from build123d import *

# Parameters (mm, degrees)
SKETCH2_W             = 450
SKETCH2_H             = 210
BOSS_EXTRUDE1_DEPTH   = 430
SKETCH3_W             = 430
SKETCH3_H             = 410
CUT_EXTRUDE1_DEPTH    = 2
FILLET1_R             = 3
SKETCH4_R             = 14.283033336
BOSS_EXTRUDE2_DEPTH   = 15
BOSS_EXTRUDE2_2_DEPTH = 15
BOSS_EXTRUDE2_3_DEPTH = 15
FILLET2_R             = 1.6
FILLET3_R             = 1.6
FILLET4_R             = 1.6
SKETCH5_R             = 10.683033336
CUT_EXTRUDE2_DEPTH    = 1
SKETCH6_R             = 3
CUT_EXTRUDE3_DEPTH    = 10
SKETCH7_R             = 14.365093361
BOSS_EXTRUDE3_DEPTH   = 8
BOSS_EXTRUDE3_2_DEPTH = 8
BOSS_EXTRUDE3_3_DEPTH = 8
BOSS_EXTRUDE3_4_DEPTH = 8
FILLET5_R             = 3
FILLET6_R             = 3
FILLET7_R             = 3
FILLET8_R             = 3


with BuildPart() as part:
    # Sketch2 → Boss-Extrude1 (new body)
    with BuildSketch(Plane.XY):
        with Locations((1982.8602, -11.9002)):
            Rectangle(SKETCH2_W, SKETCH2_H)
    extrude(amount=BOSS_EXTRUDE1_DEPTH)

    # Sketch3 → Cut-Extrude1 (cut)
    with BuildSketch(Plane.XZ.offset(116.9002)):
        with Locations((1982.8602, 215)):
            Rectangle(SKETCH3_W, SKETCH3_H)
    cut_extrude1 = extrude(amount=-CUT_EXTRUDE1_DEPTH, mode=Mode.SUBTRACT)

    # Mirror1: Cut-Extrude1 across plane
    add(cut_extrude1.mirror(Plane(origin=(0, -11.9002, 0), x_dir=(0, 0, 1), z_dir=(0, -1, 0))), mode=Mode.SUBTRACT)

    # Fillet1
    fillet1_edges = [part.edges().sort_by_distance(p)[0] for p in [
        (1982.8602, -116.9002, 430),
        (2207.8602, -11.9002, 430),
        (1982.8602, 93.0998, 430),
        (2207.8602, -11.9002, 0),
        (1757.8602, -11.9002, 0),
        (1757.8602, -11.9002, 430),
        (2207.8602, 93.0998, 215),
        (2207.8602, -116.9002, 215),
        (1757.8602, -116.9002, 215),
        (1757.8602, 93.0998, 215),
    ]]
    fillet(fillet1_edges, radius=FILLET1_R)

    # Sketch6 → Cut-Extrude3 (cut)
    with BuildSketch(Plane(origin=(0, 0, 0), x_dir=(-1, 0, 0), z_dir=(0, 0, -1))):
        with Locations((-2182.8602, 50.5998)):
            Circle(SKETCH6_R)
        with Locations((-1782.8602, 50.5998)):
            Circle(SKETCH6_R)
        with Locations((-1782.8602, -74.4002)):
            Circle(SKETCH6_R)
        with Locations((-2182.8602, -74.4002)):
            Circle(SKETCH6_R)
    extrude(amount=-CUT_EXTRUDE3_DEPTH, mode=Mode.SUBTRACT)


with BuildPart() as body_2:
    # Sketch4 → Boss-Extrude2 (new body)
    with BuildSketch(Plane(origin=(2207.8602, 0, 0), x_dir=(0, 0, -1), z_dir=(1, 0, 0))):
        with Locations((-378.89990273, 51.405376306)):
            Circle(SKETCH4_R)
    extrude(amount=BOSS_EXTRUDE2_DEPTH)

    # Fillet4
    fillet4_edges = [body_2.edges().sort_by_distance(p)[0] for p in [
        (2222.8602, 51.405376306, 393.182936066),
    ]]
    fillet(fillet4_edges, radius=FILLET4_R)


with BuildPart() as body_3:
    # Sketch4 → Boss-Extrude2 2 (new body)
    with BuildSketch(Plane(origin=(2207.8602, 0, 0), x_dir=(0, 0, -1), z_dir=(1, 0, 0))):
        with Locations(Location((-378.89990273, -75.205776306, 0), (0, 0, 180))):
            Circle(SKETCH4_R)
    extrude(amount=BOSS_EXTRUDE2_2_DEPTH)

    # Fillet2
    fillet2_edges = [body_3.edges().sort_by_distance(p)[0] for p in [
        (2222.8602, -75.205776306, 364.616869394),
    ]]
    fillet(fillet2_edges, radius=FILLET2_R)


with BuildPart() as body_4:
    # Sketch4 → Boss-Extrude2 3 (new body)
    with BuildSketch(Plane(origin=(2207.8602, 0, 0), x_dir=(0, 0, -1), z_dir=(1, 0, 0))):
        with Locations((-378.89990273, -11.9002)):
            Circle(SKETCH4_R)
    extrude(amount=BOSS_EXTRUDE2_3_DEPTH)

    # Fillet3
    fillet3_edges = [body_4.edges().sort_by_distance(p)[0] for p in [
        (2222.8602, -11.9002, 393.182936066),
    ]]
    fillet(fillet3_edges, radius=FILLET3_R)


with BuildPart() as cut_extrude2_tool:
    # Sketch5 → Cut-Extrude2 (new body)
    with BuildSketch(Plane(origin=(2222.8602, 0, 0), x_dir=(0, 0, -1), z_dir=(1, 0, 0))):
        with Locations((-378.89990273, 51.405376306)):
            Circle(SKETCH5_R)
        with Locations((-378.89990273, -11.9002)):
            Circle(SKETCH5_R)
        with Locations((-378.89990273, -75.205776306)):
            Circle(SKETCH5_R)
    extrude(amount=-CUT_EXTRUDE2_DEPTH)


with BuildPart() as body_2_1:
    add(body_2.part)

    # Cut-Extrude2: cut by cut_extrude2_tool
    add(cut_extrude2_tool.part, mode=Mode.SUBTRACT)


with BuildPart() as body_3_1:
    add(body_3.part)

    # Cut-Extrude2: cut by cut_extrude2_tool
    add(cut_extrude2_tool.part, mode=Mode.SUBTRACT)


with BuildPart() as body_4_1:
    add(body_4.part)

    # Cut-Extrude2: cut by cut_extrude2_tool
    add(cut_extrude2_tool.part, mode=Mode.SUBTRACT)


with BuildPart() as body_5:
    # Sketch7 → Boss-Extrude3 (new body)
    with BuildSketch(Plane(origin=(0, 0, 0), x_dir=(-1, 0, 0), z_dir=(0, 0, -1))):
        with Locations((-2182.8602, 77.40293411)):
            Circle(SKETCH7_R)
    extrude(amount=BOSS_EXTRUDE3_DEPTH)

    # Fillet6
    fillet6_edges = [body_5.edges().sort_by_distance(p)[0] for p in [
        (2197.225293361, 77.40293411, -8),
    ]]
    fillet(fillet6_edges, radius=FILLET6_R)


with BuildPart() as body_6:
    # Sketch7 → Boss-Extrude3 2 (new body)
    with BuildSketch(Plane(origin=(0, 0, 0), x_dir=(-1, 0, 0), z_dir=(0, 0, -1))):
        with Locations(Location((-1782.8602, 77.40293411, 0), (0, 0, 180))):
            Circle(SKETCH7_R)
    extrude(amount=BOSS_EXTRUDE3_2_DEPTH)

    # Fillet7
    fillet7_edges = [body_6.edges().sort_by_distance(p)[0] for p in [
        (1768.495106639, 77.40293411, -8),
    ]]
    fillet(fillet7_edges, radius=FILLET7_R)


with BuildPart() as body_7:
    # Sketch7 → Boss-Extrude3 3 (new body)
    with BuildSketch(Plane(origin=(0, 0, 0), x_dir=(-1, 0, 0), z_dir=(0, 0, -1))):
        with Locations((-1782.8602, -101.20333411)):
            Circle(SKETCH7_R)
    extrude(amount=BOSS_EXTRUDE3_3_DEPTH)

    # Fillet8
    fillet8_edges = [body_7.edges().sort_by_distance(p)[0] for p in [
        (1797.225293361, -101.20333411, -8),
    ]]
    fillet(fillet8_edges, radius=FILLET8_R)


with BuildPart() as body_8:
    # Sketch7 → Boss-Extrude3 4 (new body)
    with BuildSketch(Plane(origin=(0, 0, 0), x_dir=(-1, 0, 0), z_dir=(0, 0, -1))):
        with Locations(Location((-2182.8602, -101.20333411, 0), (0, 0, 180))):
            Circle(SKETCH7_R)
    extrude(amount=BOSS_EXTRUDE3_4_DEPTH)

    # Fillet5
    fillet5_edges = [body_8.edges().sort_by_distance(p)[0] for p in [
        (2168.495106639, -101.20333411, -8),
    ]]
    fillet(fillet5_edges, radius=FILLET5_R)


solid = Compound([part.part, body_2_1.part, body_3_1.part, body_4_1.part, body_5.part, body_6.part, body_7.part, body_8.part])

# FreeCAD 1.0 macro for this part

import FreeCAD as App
import Part
import Sketcher
from FreeCAD import Vector


def edges_at(feature, points):
    """Names of the edges that pass closest to the given points."""
    edges = feature.Shape.Edges
    near = lambda p: min(range(len(edges)), key=lambda i: edges[i].distToShape(Part.Vertex(*p))[0])
    return sorted({f"Edge{near(p) + 1}" for p in points})

doc = App.newDocument("Part")
body = doc.addObject("PartDesign::Body", "Body")

sketch1 = body.newObject("Sketcher::SketchObject", "Sketch")
sketch1.AttachmentSupport = (doc.getObject("XY_Plane"), [""])
sketch1.MapMode = "FlatFace"
sketch1.addGeometry(Part.LineSegment(Vector(1758, 93, 0), Vector(1758, -117, 0)), False)
sketch1.addGeometry(Part.LineSegment(Vector(1758, -117, 0), Vector(2208, -117, 0)), False)
sketch1.addGeometry(Part.LineSegment(Vector(2208, -117, 0), Vector(2208, 93, 0)), False)
sketch1.addGeometry(Part.LineSegment(Vector(2208, 93, 0), Vector(1758, 93, 0)), False)
sketch1.addConstraint(Sketcher.Constraint("Coincident", 0, 2, 1, 1))
sketch1.addConstraint(Sketcher.Constraint("Coincident", 1, 2, 2, 1))
sketch1.addConstraint(Sketcher.Constraint("Coincident", 2, 2, 3, 1))
sketch1.addConstraint(Sketcher.Constraint("Coincident", 3, 2, 0, 1))
sketch1.addConstraint(Sketcher.Constraint("Vertical", 0))
sketch1.addConstraint(Sketcher.Constraint("Horizontal", 1))
sketch1.addConstraint(Sketcher.Constraint("Vertical", 2))
sketch1.addConstraint(Sketcher.Constraint("Horizontal", 3))
sketch1.addConstraint(Sketcher.Constraint("DistanceX", 1, 1, 1, 2, 450.0))
sketch1.addConstraint(Sketcher.Constraint("DistanceY", 0, 2, 0, 1, 210.0))
sketch1.addConstraint(Sketcher.Constraint("DistanceX", -1, 1, 0, 2, 1757.8602))
sketch1.addConstraint(Sketcher.Constraint("DistanceY", 0, 2, -1, 1, 116.9002))
pad1 = body.newObject("PartDesign::Pad", "Pad")
pad1.Profile = sketch1
pad1.Length = 430

sketch2 = body.newObject("Sketcher::SketchObject", "Sketch001")
sketch2.AttachmentSupport = (doc.getObject("XZ_Plane"), [""])
sketch2.MapMode = "FlatFace"
sketch2.AttachmentOffset = App.Placement(Vector(0, 0, 116.9002), App.Rotation())
sketch2.addGeometry(Part.LineSegment(Vector(1768, 420, 0), Vector(1768, 10, 0)), False)
sketch2.addGeometry(Part.LineSegment(Vector(1768, 10, 0), Vector(2198, 10, 0)), False)
sketch2.addGeometry(Part.LineSegment(Vector(2198, 10, 0), Vector(2198, 420, 0)), False)
sketch2.addGeometry(Part.LineSegment(Vector(2198, 420, 0), Vector(1768, 420, 0)), False)
sketch2.addConstraint(Sketcher.Constraint("Coincident", 0, 2, 1, 1))
sketch2.addConstraint(Sketcher.Constraint("Coincident", 1, 2, 2, 1))
sketch2.addConstraint(Sketcher.Constraint("Coincident", 2, 2, 3, 1))
sketch2.addConstraint(Sketcher.Constraint("Coincident", 3, 2, 0, 1))
sketch2.addConstraint(Sketcher.Constraint("Vertical", 0))
sketch2.addConstraint(Sketcher.Constraint("Horizontal", 1))
sketch2.addConstraint(Sketcher.Constraint("Vertical", 2))
sketch2.addConstraint(Sketcher.Constraint("Horizontal", 3))
sketch2.addConstraint(Sketcher.Constraint("DistanceX", 1, 1, 1, 2, 430.0))
sketch2.addConstraint(Sketcher.Constraint("DistanceY", 0, 2, 0, 1, 410.0))
sketch2.addConstraint(Sketcher.Constraint("DistanceY", -1, 1, 0, 2, 10.0))
sketch2.addConstraint(Sketcher.Constraint("DistanceX", -1, 1, 0, 2, 1767.8602))
pocket1 = body.newObject("PartDesign::Pocket", "Pocket")
pocket1.Profile = sketch2
pocket1.Length = 2
doc.recompute()

datumplane = body.newObject("PartDesign::Plane", "DatumPlane")
datumplane.AttachmentSupport = (doc.getObject("XZ_Plane"), [""])
datumplane.MapMode = "FlatFace"
datumplane.AttachmentOffset = App.Placement(Vector(0, 0, 11.9002), App.Rotation())
mirrored = body.newObject("PartDesign::Mirrored", "Mirrored")
mirrored.Originals = [pocket1]
mirrored.MirrorPlane = (datumplane, [""])
body.Tip = mirrored
doc.recompute()

fillet = body.newObject("PartDesign::Fillet", "Fillet")
fillet.Base = (mirrored, edges_at(mirrored, [
    (1982.86, -116.9, 430),
    (2207.86, -11.9, 430),
    (1982.86, 93.1, 430),
    (2207.86, -11.9, 0),
    (1757.86, -11.9, 0),
    (1757.86, -11.9, 430),
    (2207.86, 93.1, 215),
    (2207.86, -116.9, 215),
    (1757.86, -116.9, 215),
    (1757.86, 93.1, 215),
]))
fillet.Radius = 3

sketch3 = body.newObject("Sketcher::SketchObject", "Sketch002")
sketch3.AttachmentSupport = (doc.getObject("XY_Plane"), [""])
sketch3.MapMode = "FlatFace"
sketch3.addGeometry(Part.Circle(Vector(2182.9, 50.6, 0), Vector(0, 0, 1), 3), False)
sketch3.addGeometry(Part.Circle(Vector(1782.9, 50.6, 0), Vector(0, 0, 1), 3), False)
sketch3.addGeometry(Part.Circle(Vector(1782.9, -74.4, 0), Vector(0, 0, 1), 3), False)
sketch3.addGeometry(Part.Circle(Vector(2182.9, -74.4, 0), Vector(0, 0, 1), 3), False)
sketch3.addConstraint(Sketcher.Constraint("Equal", 0, 1))
sketch3.addConstraint(Sketcher.Constraint("Equal", 1, 2))
sketch3.addConstraint(Sketcher.Constraint("Equal", 2, 3))
sketch3.addConstraint(Sketcher.Constraint("Horizontal", 0, 3, 1, 3))
sketch3.addConstraint(Sketcher.Constraint("Horizontal", 2, 3, 3, 3))
sketch3.addConstraint(Sketcher.Constraint("Vertical", 1, 3, 2, 3))
sketch3.addConstraint(Sketcher.Constraint("Vertical", 0, 3, 3, 3))
sketch3.addConstraint(Sketcher.Constraint("Diameter", 0, 6.0))
sketch3.addConstraint(Sketcher.Constraint("DistanceX", 1, 3, 0, 3, 400.0))
sketch3.addConstraint(Sketcher.Constraint("DistanceY", 2, 3, 1, 3, 125.0))
sketch3.addConstraint(Sketcher.Constraint("DistanceX", -1, 1, 0, 3, 2182.8602))
sketch3.addConstraint(Sketcher.Constraint("DistanceY", -1, 1, 0, 3, 50.5998))
pocket2 = body.newObject("PartDesign::Pocket", "Pocket001")
pocket2.Profile = sketch3
pocket2.Length = 10
pocket2.Reversed = True
body2 = doc.addObject("PartDesign::Body", "Body001")

sketch4 = body2.newObject("Sketcher::SketchObject", "Sketch003")
sketch4.AttachmentSupport = (doc.getObject("YZ_Plane001"), [""])
sketch4.MapMode = "FlatFace"
sketch4.AttachmentOffset = App.Placement(Vector(0, 0, 2207.8602), App.Rotation())
sketch4.addGeometry(Part.Circle(Vector(51, 379, 0), Vector(0, 0, 1), 14), False)
sketch4.addConstraint(Sketcher.Constraint("Diameter", 0, 28.566067))
sketch4.addConstraint(Sketcher.Constraint("DistanceX", -1, 1, 0, 3, 51.405376))
sketch4.addConstraint(Sketcher.Constraint("DistanceY", -1, 1, 0, 3, 378.899903))
pad2 = body2.newObject("PartDesign::Pad", "Pad001")
pad2.Profile = sketch4
pad2.Length = 15
doc.recompute()

fillet2 = body2.newObject("PartDesign::Fillet", "Fillet001")
fillet2.Base = (pad2, edges_at(pad2, [(2222.86, 51.405, 393.183)]))
fillet2.Radius = 1.6
body3 = doc.addObject("PartDesign::Body", "Body002")

sketch5 = body3.newObject("Sketcher::SketchObject", "Sketch004")
sketch5.AttachmentSupport = (doc.getObject("YZ_Plane002"), [""])
sketch5.MapMode = "FlatFace"
sketch5.AttachmentOffset = App.Placement(Vector(0, 0, 2207.8602), App.Rotation())
sketch5.addGeometry(Part.Circle(Vector(-75, 379, 0), Vector(0, 0, 1), 14), False)
sketch5.addConstraint(Sketcher.Constraint("Diameter", 0, 28.566067))
sketch5.addConstraint(Sketcher.Constraint("DistanceX", 0, 3, -1, 1, 75.205776))
sketch5.addConstraint(Sketcher.Constraint("DistanceY", -1, 1, 0, 3, 378.899903))
pad3 = body3.newObject("PartDesign::Pad", "Pad002")
pad3.Profile = sketch5
pad3.Length = 15
doc.recompute()

fillet3 = body3.newObject("PartDesign::Fillet", "Fillet002")
fillet3.Base = (pad3, edges_at(pad3, [(2222.86, -75.206, 364.617)]))
fillet3.Radius = 1.6
body4 = doc.addObject("PartDesign::Body", "Body003")

sketch6 = body4.newObject("Sketcher::SketchObject", "Sketch005")
sketch6.AttachmentSupport = (doc.getObject("YZ_Plane003"), [""])
sketch6.MapMode = "FlatFace"
sketch6.AttachmentOffset = App.Placement(Vector(0, 0, 2207.8602), App.Rotation())
sketch6.addGeometry(Part.Circle(Vector(-12, 379, 0), Vector(0, 0, 1), 14), False)
sketch6.addConstraint(Sketcher.Constraint("Diameter", 0, 28.566067))
sketch6.addConstraint(Sketcher.Constraint("DistanceX", 0, 3, -1, 1, 11.9002))
sketch6.addConstraint(Sketcher.Constraint("DistanceY", -1, 1, 0, 3, 378.899903))
pad4 = body4.newObject("PartDesign::Pad", "Pad003")
pad4.Profile = sketch6
pad4.Length = 15
doc.recompute()

fillet4 = body4.newObject("PartDesign::Fillet", "Fillet003")
fillet4.Base = (pad4, edges_at(pad4, [(2222.86, -11.9, 393.183)]))
fillet4.Radius = 1.6
body5 = doc.addObject("PartDesign::Body", "Body004")
body5.AllowCompound = True

sketch7 = body5.newObject("Sketcher::SketchObject", "Sketch006")
sketch7.AttachmentSupport = (doc.getObject("YZ_Plane004"), [""])
sketch7.MapMode = "FlatFace"
sketch7.AttachmentOffset = App.Placement(Vector(0, 0, 2222.8602), App.Rotation())
sketch7.addGeometry(Part.Circle(Vector(51, 379, 0), Vector(0, 0, 1), 11), False)
sketch7.addGeometry(Part.Circle(Vector(-12, 379, 0), Vector(0, 0, 1), 11), False)
sketch7.addGeometry(Part.Circle(Vector(-75, 379, 0), Vector(0, 0, 1), 11), False)
sketch7.addConstraint(Sketcher.Constraint("Equal", 0, 1))
sketch7.addConstraint(Sketcher.Constraint("Equal", 1, 2))
sketch7.addConstraint(Sketcher.Constraint("Horizontal", 0, 3, 1, 3))
sketch7.addConstraint(Sketcher.Constraint("Horizontal", 1, 3, 2, 3))
sketch7.addConstraint(Sketcher.Constraint("Diameter", 0, 21.366067))
sketch7.addConstraint(Sketcher.Constraint("DistanceX", 1, 3, -1, 1, 11.9002))
sketch7.addConstraint(Sketcher.Constraint("DistanceX", -1, 1, 0, 3, 51.405376))
sketch7.addConstraint(Sketcher.Constraint("DistanceY", -1, 1, 0, 3, 378.899903))
sketch7.addConstraint(Sketcher.Constraint("DistanceX", 2, 3, -1, 1, 75.205776))
pad5 = body5.newObject("PartDesign::Pad", "Pad004")
pad5.Profile = sketch7
pad5.Length = 1
pad5.Reversed = True
doc.recompute()

body6 = doc.addObject("PartDesign::Body", "Body005")
body6.BaseFeature = body5
boolean = body2.newObject("PartDesign::Boolean", "Boolean")
boolean.Type = "Cut"
boolean.addObjects([body6])
doc.recompute()

body7 = doc.addObject("PartDesign::Body", "Body006")
body7.BaseFeature = body5
boolean2 = body3.newObject("PartDesign::Boolean", "Boolean001")
boolean2.Type = "Cut"
boolean2.addObjects([body7])
doc.recompute()

boolean3 = body4.newObject("PartDesign::Boolean", "Boolean002")
boolean3.Type = "Cut"
boolean3.addObjects([body5])
body8 = doc.addObject("PartDesign::Body", "Body007")

sketch8 = body8.newObject("Sketcher::SketchObject", "Sketch007")
sketch8.AttachmentSupport = (doc.getObject("XY_Plane007"), [""])
sketch8.MapMode = "FlatFace"
sketch8.addGeometry(Part.Circle(Vector(2183, 77, 0), Vector(0, 0, 1), 14), False)
sketch8.addConstraint(Sketcher.Constraint("Diameter", 0, 28.730187))
sketch8.addConstraint(Sketcher.Constraint("DistanceX", -1, 1, 0, 3, 2182.8602))
sketch8.addConstraint(Sketcher.Constraint("DistanceY", -1, 1, 0, 3, 77.402934))
pad6 = body8.newObject("PartDesign::Pad", "Pad005")
pad6.Profile = sketch8
pad6.Length = 8
pad6.Reversed = True
doc.recompute()

fillet5 = body8.newObject("PartDesign::Fillet", "Fillet004")
fillet5.Base = (pad6, edges_at(pad6, [(2197.225, 77.403, -8)]))
fillet5.Radius = 3
body9 = doc.addObject("PartDesign::Body", "Body008")

sketch9 = body9.newObject("Sketcher::SketchObject", "Sketch008")
sketch9.AttachmentSupport = (doc.getObject("XY_Plane008"), [""])
sketch9.MapMode = "FlatFace"
sketch9.addGeometry(Part.Circle(Vector(1783, 77, 0), Vector(0, 0, 1), 14), False)
sketch9.addConstraint(Sketcher.Constraint("Diameter", 0, 28.730187))
sketch9.addConstraint(Sketcher.Constraint("DistanceX", -1, 1, 0, 3, 1782.8602))
sketch9.addConstraint(Sketcher.Constraint("DistanceY", -1, 1, 0, 3, 77.402934))
pad7 = body9.newObject("PartDesign::Pad", "Pad006")
pad7.Profile = sketch9
pad7.Length = 8
pad7.Reversed = True
doc.recompute()

fillet6 = body9.newObject("PartDesign::Fillet", "Fillet005")
fillet6.Base = (pad7, edges_at(pad7, [(1768.495, 77.403, -8)]))
fillet6.Radius = 3
body10 = doc.addObject("PartDesign::Body", "Body009")

sketch10 = body10.newObject("Sketcher::SketchObject", "Sketch009")
sketch10.AttachmentSupport = (doc.getObject("XY_Plane009"), [""])
sketch10.MapMode = "FlatFace"
sketch10.addGeometry(Part.Circle(Vector(1783, -101, 0), Vector(0, 0, 1), 14), False)
sketch10.addConstraint(Sketcher.Constraint("Diameter", 0, 28.730187))
sketch10.addConstraint(Sketcher.Constraint("DistanceX", -1, 1, 0, 3, 1782.8602))
sketch10.addConstraint(Sketcher.Constraint("DistanceY", 0, 3, -1, 1, 101.203334))
pad8 = body10.newObject("PartDesign::Pad", "Pad007")
pad8.Profile = sketch10
pad8.Length = 8
pad8.Reversed = True
doc.recompute()

fillet7 = body10.newObject("PartDesign::Fillet", "Fillet006")
fillet7.Base = (pad8, edges_at(pad8, [(1797.225, -101.203, -8)]))
fillet7.Radius = 3
body11 = doc.addObject("PartDesign::Body", "Body010")

sketch11 = body11.newObject("Sketcher::SketchObject", "Sketch010")
sketch11.AttachmentSupport = (doc.getObject("XY_Plane010"), [""])
sketch11.MapMode = "FlatFace"
sketch11.addGeometry(Part.Circle(Vector(2183, -101, 0), Vector(0, 0, 1), 14), False)
sketch11.addConstraint(Sketcher.Constraint("Diameter", 0, 28.730187))
sketch11.addConstraint(Sketcher.Constraint("DistanceX", -1, 1, 0, 3, 2182.8602))
sketch11.addConstraint(Sketcher.Constraint("DistanceY", 0, 3, -1, 1, 101.203334))
pad9 = body11.newObject("PartDesign::Pad", "Pad008")
pad9.Profile = sketch11
pad9.Length = 8
pad9.Reversed = True
doc.recompute()

fillet8 = body11.newObject("PartDesign::Fillet", "Fillet007")
fillet8.Base = (pad9, edges_at(pad9, [(2168.495, -101.203, -8)]))
fillet8.Radius = 3

doc.recompute()
